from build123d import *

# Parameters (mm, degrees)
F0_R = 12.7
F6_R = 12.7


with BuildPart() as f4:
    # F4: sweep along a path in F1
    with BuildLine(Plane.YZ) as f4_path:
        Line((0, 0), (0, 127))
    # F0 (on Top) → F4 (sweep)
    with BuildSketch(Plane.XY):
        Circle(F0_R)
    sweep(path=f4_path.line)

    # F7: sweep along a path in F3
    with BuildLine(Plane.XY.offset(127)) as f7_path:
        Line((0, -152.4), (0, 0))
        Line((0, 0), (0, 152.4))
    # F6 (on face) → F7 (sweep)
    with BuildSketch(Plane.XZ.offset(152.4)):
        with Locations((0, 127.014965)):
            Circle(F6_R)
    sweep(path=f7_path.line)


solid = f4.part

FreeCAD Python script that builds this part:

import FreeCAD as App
import Part
import Sketcher
from FreeCAD import Vector
Q = App.Units.Quantity

doc = App.newDocument("Part")
body = doc.addObject("PartDesign::Body", "Body")

# Sketch on XY plane
sketch1 = body.newObject("Sketcher::SketchObject", "Sketch")
sketch1.AttachmentSupport = (doc.getObject("XY_Plane"), [""])
sketch1.MapMode = "FlatFace"
sketch1.addGeometry(Part.Circle(Vector(0, 0, 0), Vector(0, 0, 1), 13), False)
sketch1.addConstraint([
    Sketcher.Constraint("Coincident", 0, 3, -1, 1),
    Sketcher.Constraint("Diameter", 0, Q("1 in")),
])

# Sketch on XZ plane
sketch2 = body.newObject("Sketcher::SketchObject", "Sketch001")
sketch2.AttachmentSupport = (doc.getObject("XZ_Plane"), [""])
sketch2.MapMode = "FlatFace"
sketch2.addGeometry(Part.LineSegment(Vector(0, 0, 0), Vector(0, 127, 0)), False)
sketch2.addConstraint([
    Sketcher.Constraint("Vertical", 0),
    Sketcher.Constraint("Coincident", 0, 1, -1, 1),
    Sketcher.Constraint("DistanceY", 0, 1, 0, 2, Q("5 in")),
])
doc.recompute()

additivepipe = body.newObject("PartDesign::AdditivePipe", "AdditivePipe")
additivepipe.Profile = sketch1
additivepipe.Spine = (sketch2, ["Edge1"])

# Sketch on XZ plane
sketch3 = body.newObject("Sketcher::SketchObject", "Sketch002")
sketch3.AttachmentSupport = (doc.getObject("XZ_Plane"), [""])
sketch3.MapMode = "FlatFace"
sketch3.AttachmentOffset = App.Placement(Vector(0, 0, 6 * 25.4), App.Rotation())
sketch3.addGeometry(Part.Circle(Vector(0, 127, 0), Vector(0, 0, 1), 13), False)
sketch3.addConstraint([
    Sketcher.Constraint("PointOnObject", 0, 3, -2),
    Sketcher.Constraint("Diameter", 0, Q("1 in")),
    Sketcher.Constraint("DistanceY", -1, 1, 0, 3, 127.014965),
])

# Sketch on XY plane
sketch4 = body.newObject("Sketcher::SketchObject", "Sketch003")
sketch4.AttachmentSupport = (doc.getObject("XY_Plane"), [""])
sketch4.MapMode = "FlatFace"
sketch4.AttachmentOffset = App.Placement(Vector(0, 0, 5 * 25.4), App.Rotation())
sketch4.addGeometry(Part.LineSegment(Vector(0, -152, 0), Vector(0, 152, 0)), False)
sketch4.addConstraint([
    Sketcher.Constraint("Vertical", 0),
    Sketcher.Constraint("Symmetric", 0, 1, 0, 2, -1, 1),
    Sketcher.Constraint("DistanceY", 0, 1, 0, 2, Q("12 in")),
])
doc.recompute()

additivepipe2 = body.newObject("PartDesign::AdditivePipe", "AdditivePipe001")
additivepipe2.Profile = sketch3
additivepipe2.Spine = (sketch4, ["Edge1"])

doc.recompute()
